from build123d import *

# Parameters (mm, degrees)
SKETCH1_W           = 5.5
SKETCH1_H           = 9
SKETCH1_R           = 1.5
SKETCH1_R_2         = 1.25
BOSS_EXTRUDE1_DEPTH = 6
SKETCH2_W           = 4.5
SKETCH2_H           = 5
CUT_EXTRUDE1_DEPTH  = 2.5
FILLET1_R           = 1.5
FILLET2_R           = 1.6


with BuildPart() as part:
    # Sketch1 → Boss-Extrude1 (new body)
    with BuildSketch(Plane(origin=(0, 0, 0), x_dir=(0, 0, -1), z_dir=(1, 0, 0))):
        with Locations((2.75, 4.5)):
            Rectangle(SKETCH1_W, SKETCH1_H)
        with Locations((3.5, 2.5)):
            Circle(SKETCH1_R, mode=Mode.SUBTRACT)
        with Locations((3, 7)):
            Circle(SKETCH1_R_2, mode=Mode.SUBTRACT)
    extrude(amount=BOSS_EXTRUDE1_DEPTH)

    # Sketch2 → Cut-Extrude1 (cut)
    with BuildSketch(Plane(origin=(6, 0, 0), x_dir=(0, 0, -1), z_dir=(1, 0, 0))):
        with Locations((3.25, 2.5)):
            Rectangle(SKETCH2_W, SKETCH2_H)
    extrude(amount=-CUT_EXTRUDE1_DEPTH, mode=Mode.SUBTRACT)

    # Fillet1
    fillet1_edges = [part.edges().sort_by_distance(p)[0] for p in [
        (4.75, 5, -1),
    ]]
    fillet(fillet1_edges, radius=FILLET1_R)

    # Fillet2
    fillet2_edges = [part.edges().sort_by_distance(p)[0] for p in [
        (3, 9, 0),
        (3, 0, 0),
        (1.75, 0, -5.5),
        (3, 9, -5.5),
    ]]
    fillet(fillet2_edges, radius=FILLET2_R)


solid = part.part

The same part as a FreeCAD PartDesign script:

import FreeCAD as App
import Part
import Sketcher

V = App.Vector


def edges_at(feature, points):
    """Names of the edges that pass closest to the given points."""
    edges = feature.Shape.Edges
    near = lambda p: min(range(len(edges)), key=lambda i: edges[i].distToShape(Part.Vertex(*p))[0])
    return sorted({f"Edge{near(p) + 1}" for p in points})

doc = App.newDocument("Part")
body = doc.addObject("PartDesign::Body", "Body")

sketch1 = body.newObject("Sketcher::SketchObject", "Sketch")
sketch1.AttachmentSupport = (doc.getObject("YZ_Plane"), [""])
sketch1.MapMode = "FlatFace"
sketch1.addGeometry([
    Part.LineSegment(V(9, 0, 0), V(0, 0, 0)),
    Part.LineSegment(V(0, 0, 0), V(0, -5.5, 0)),
    Part.LineSegment(V(0, -5.5, 0), V(9, -5.5, 0)),
    Part.LineSegment(V(9, -5.5, 0), V(9, 0, 0)),
    Part.Circle(V(2.5, -3.5, 0), V(0, 0, 1), 1.5),
    Part.Circle(V(7, -3, 0), V(0, 0, 1), 1.25),
], False)
sketch1.addConstraint([
    Sketcher.Constraint("Coincident", 0, 2, 1, 1),
    Sketcher.Constraint("Coincident", 1, 2, 2, 1),
    Sketcher.Constraint("Coincident", 2, 2, 3, 1),
    Sketcher.Constraint("Coincident", 3, 2, 0, 1),
    Sketcher.Constraint("Horizontal", 0),
    Sketcher.Constraint("Vertical", 1),
    Sketcher.Constraint("Horizontal", 2),
    Sketcher.Constraint("Vertical", 3),
    Sketcher.Constraint("Coincident", 0, 2, -1, 1),
    Sketcher.Constraint("Diameter", 4, 3.0),
    Sketcher.Constraint("Diameter", 5, 2.5),
    Sketcher.Constraint("DistanceX", 0, 2, 0, 1, 9.0),
    Sketcher.Constraint("DistanceY", 1, 2, 1, 1, 5.5),
    Sketcher.Constraint("DistanceX", -1, 1, 5, 3, 7.0),
    Sketcher.Constraint("DistanceY", 5, 3, -1, 1, 3.0),
    Sketcher.Constraint("DistanceY", 1, 2, 4, 3, 2.0),
    Sketcher.Constraint("DistanceX", -1, 1, 4, 3, 2.5),
])
pad1 = body.newObject("PartDesign::Pad", "Pad")
pad1.Profile = sketch1
pad1.Length = 6

sketch2 = body.newObject("Sketcher::SketchObject", "Sketch001")
sketch2.AttachmentSupport = (doc.getObject("YZ_Plane"), [""])
sketch2.MapMode = "FlatFace"
sketch2.AttachmentOffset = App.Placement(V(0, 0, 6), App.Rotation())
sketch2.addGeometry([
    Part.LineSegment(V(5, -1, 0), V(0, -1, 0)),
    Part.LineSegment(V(0, -1, 0), V(0, -5.5, 0)),
    Part.LineSegment(V(0, -5.5, 0), V(5, -5.5, 0)),
    Part.LineSegment(V(5, -5.5, 0), V(5, -1, 0)),
], False)
sketch2.addConstraint([
    Sketcher.Constraint("Coincident", 0, 2, 1, 1),
    Sketcher.Constraint("Coincident", 1, 2, 2, 1),
    Sketcher.Constraint("Coincident", 2, 2, 3, 1),
    Sketcher.Constraint("Coincident", 3, 2, 0, 1),
    Sketcher.Constraint("Horizontal", 0),
    Sketcher.Constraint("Vertical", 1),
    Sketcher.Constraint("Horizontal", 2),
    Sketcher.Constraint("Vertical", 3),
    Sketcher.Constraint("PointOnObject", 0, 2, -2),
    Sketcher.Constraint("DistanceX", 0, 2, 0, 1, 5.0),
    Sketcher.Constraint("DistanceY", 1, 2, 1, 1, 4.5),
    Sketcher.Constraint("DistanceY", 0, 2, -1, 1, 1.0),
])
pocket1 = body.newObject("PartDesign::Pocket", "Pocket")
pocket1.Profile = sketch2
pocket1.Length = 2.5
doc.recompute()

fillet = body.newObject("PartDesign::Fillet", "Fillet")
fillet.Base = (pocket1, edges_at(pocket1, [(4.75, 5, -1)]))
fillet.Radius = 1.5
doc.recompute()

fillet2 = body.newObject("PartDesign::Fillet", "Fillet001")
fillet2.Base = (fillet, edges_at(fillet, [
    (3, 9, 0),
    (3, 0, 0),
    (1.75, 0, -5.5),
    (3, 9, -5.5),
]))
fillet2.Radius = 1.6

doc.recompute()
